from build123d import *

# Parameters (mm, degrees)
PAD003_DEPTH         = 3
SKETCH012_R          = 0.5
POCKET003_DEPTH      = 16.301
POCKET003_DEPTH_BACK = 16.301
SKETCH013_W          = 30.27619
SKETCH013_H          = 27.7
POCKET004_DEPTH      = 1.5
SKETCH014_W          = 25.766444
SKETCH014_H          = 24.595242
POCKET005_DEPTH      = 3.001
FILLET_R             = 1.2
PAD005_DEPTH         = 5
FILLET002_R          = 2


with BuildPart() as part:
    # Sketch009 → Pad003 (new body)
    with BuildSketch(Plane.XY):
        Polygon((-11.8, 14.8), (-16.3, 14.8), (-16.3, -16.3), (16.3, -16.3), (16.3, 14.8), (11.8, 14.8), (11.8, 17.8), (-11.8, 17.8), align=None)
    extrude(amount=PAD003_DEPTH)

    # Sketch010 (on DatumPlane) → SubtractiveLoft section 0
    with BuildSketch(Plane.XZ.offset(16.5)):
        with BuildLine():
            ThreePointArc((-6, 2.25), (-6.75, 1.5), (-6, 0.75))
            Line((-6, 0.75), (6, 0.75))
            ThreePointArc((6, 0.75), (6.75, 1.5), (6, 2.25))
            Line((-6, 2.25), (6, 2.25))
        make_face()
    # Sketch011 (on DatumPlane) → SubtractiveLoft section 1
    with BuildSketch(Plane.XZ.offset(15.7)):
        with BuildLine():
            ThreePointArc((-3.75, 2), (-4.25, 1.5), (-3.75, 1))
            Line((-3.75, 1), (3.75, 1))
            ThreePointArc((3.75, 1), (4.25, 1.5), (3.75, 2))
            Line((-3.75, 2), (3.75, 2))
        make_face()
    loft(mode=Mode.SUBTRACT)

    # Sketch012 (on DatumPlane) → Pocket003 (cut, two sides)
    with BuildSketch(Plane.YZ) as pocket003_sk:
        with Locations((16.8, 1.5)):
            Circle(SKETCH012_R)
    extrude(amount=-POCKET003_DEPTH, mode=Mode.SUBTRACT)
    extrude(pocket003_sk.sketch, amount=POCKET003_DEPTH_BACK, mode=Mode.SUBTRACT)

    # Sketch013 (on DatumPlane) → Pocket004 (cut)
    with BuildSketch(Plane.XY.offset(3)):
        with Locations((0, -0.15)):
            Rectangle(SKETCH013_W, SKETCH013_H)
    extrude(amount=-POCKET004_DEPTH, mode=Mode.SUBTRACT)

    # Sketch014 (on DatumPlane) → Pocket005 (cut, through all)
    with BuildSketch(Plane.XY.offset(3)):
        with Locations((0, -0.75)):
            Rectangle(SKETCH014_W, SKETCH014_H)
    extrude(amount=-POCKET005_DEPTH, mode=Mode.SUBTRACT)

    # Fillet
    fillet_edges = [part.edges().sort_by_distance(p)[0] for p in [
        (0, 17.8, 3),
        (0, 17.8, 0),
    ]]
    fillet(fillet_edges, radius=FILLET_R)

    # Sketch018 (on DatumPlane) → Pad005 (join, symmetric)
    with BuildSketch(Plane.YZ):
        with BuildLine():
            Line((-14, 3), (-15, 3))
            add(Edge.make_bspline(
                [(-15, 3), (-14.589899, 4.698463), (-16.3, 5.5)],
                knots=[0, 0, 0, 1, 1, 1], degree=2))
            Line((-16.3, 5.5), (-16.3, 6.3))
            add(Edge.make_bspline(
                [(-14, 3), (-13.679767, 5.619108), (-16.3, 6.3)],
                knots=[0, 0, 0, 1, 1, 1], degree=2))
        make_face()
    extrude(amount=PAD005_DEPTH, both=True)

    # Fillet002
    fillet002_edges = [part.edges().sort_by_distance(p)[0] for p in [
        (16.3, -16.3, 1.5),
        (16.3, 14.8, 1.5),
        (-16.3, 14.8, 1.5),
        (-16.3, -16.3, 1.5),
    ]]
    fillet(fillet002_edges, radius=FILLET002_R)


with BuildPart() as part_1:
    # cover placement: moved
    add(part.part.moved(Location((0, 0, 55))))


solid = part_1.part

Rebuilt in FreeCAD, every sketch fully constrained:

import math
import FreeCAD as App
import Part
import Sketcher
Q = App.Units.Quantity


def edges_at(feature, points):
    """Names of the edges that pass closest to the given points."""
    edges = feature.Shape.Edges
    near = lambda p: min(range(len(edges)), key=lambda i: edges[i].distToShape(Part.Vertex(*p))[0])
    return sorted({f"Edge{near(p) + 1}" for p in points})


def add_polygon(sketch, points):
    """Adds a closed chain of lines whose ends are joined by coincident constraints."""
    first, n = sketch.GeometryCount, len(points)
    for a, b in zip(points, points[1:] + points[:1]):
        sketch.addGeometry(Part.LineSegment(App.Vector(*a, 0), App.Vector(*b, 0)), False)
    for i in range(n):
        sketch.addConstraint(Sketcher.Constraint("Coincident", first + i, 2, first + (i + 1) % n, 1))

doc = App.newDocument("Part")
body = doc.addObject("PartDesign::Body", "Body")

# Sketch on XY plane
sketch1 = doc.addObject("Sketcher::SketchObject", "Sketch")
body.addObject(sketch1)
sketch1.AttachmentSupport = (doc.XY_Plane, [""])
sketch1.MapMode = "FlatFace"
add_polygon(sketch1, [(-11.8, 14.8), (-16.3, 14.8), (-16.3, -16.3), (16.3, -16.3), (16.3, 14.8), (11.8, 14.8), (11.8, 17.8), (-11.8, 17.8)])  # lines 0-7
sketch1.addConstraint([
    Sketcher.Constraint("Horizontal", 0),
    Sketcher.Constraint("Vertical", 1),
    Sketcher.Constraint("Horizontal", 2),
    Sketcher.Constraint("Vertical", 3),
    Sketcher.Constraint("Horizontal", 4),
    Sketcher.Constraint("Vertical", 5),
    Sketcher.Constraint("Horizontal", 6),
    Sketcher.Constraint("Vertical", 7),
    Sketcher.Constraint("Symmetric", 0, 2, 3, 2, -2),
    Sketcher.Constraint("Equal", 0, 4),
    Sketcher.Constraint("DistanceY", 5, 1, 5, 2, Q("3 mm")),
    Sketcher.Constraint("DistanceX", 0, 2, 0, 1, Q("4.5 mm")),
    Sketcher.Constraint("DistanceX", 2, 1, 2, 2, Q("32.6 mm")),
    Sketcher.Constraint("DistanceY", 1, 2, 1, 1, Q("31.1 mm")),
    Sketcher.Constraint("DistanceY", -1, 1, 0, 2, Q("14.8 mm")),
])
pad1 = doc.addObject("PartDesign::Pad", "Pad")
body.addObject(pad1)
pad1.Profile = sketch1
pad1.Length = 3

# Sketch on XZ plane
sketch2 = doc.addObject("Sketcher::SketchObject", "Sketch001")
body.addObject(sketch2)
sketch2.AttachmentSupport = (doc.XZ_Plane, [""])
sketch2.MapMode = "FlatFace"
sketch2.AttachmentOffset = App.Placement(App.Vector(0, 0, 16.5), App.Rotation())
sketch2.addGeometry([
    Part.ArcOfCircle(Part.Circle(App.Vector(-6, 1.5, 0), App.Vector(0, 0, 1), 0.8), math.radians(90), math.radians(270)),
    Part.LineSegment(App.Vector(-6, 0.8, 0), App.Vector(6, 0.8, 0)),
    Part.ArcOfCircle(Part.Circle(App.Vector(6, 1.5, 0), App.Vector(0, 0, 1), 0.8), math.radians(-90), math.radians(90)),
    Part.LineSegment(App.Vector(6, 2.2, 0), App.Vector(-6, 2.2, 0)),
], False)
sketch2.addConstraint([
    Sketcher.Constraint("Tangent", 0, 2, 1, 1),
    Sketcher.Constraint("Tangent", 1, 2, 2, 1),
    Sketcher.Constraint("Tangent", 2, 2, 3, 1),
    Sketcher.Constraint("Tangent", 3, 2, 0, 1),
    Sketcher.Constraint("Horizontal", 1),
    Sketcher.Constraint("Horizontal", 3),
    Sketcher.Constraint("DistanceX", 1, 1, 1, 2, Q("12 mm")),
    Sketcher.Constraint("Radius", 0, Q("0.75 mm")),
    Sketcher.Constraint("DistanceX", 0, 3, -1, 1, Q("6 mm")),
    Sketcher.Constraint("DistanceY", -1, 1, 0, 3, Q("1.5 mm")),
])

# Sketch on XZ plane
sketch3 = doc.addObject("Sketcher::SketchObject", "Sketch002")
body.addObject(sketch3)
sketch3.AttachmentSupport = (doc.XZ_Plane, [""])
sketch3.MapMode = "FlatFace"
sketch3.AttachmentOffset = App.Placement(App.Vector(0, 0, 15.7), App.Rotation())
sketch3.addGeometry([
    Part.ArcOfCircle(Part.Circle(App.Vector(-3.8, 1.5, 0), App.Vector(0, 0, 1), 0.5), math.radians(90), math.radians(270)),
    Part.LineSegment(App.Vector(-3.8, 1, 0), App.Vector(3.8, 1, 0)),
    Part.ArcOfCircle(Part.Circle(App.Vector(3.8, 1.5, 0), App.Vector(0, 0, 1), 0.5), math.radians(-90), math.radians(90)),
    Part.LineSegment(App.Vector(3.8, 2, 0), App.Vector(-3.8, 2, 0)),
], False)
sketch3.addConstraint([
    Sketcher.Constraint("Tangent", 0, 2, 1, 1),
    Sketcher.Constraint("Tangent", 1, 2, 2, 1),
    Sketcher.Constraint("Tangent", 2, 2, 3, 1),
    Sketcher.Constraint("Tangent", 3, 2, 0, 1),
    Sketcher.Constraint("Horizontal", 1),
    Sketcher.Constraint("Horizontal", 3),
    Sketcher.Constraint("Radius", 0, Q("0.5 mm")),
    Sketcher.Constraint("DistanceX", 1, 1, 1, 2, Q("7.5 mm")),
    Sketcher.Constraint("DistanceY", -1, 1, 0, 2, Q("1 mm")),
    Sketcher.Constraint("DistanceX", 0, 3, -1, 1, Q("3.75 mm")),
])

subtractiveloft = doc.addObject("PartDesign::SubtractiveLoft", "SubtractiveLoft")
body.addObject(subtractiveloft)
subtractiveloft.Profile = sketch2
subtractiveloft.Sections = [sketch3]

# Sketch on YZ plane
sketch4 = doc.addObject("Sketcher::SketchObject", "Sketch003")
body.addObject(sketch4)
sketch4.AttachmentSupport = (doc.YZ_Plane, [""])
sketch4.MapMode = "FlatFace"
sketch4.addGeometry(Part.Circle(App.Vector(16.8, 1.5, 0), App.Vector(0, 0, 1), 0.5), False)
sketch4.addConstraint([
    Sketcher.Constraint("Diameter", 0, Q("1 mm")),
    Sketcher.Constraint("DistanceX", -1, 1, 0, 3, Q("16.8 mm")),
    Sketcher.Constraint("DistanceY", -1, 1, 0, 3, Q("1.5 mm")),
])
pocket1 = doc.addObject("PartDesign::Pocket", "Pocket")
body.addObject(pocket1)
pocket1.Profile = sketch4
pocket1.Type = "ThroughAll"
pocket1.Midplane = True

# Sketch on XY plane
sketch5 = doc.addObject("Sketcher::SketchObject", "Sketch004")
body.addObject(sketch5)
sketch5.AttachmentSupport = (doc.XY_Plane, [""])
sketch5.MapMode = "FlatFace"
sketch5.AttachmentOffset = App.Placement(App.Vector(0, 0, 3), App.Rotation())
add_polygon(sketch5, [(-15, 14), (-15, -14), (15, -14), (15, 14)])  # lines 0-3
sketch5.addConstraint([
    Sketcher.Constraint("Vertical", 0),
    Sketcher.Constraint("Horizontal", 1),
    Sketcher.Constraint("Vertical", 2),
    Sketcher.Constraint("Horizontal", 3),
    Sketcher.Constraint("DistanceY", 0, 2, 0, 1, Q("27.7 mm")),
    Sketcher.Constraint("DistanceY", 0, 2, -1, 1, Q("14 mm")),
    Sketcher.Constraint("DistanceX", 1, 1, 1, 2, Q("30.27619 mm")),
    Sketcher.Constraint("DistanceX", 0, 2, -1, 1, Q("15.138095 mm")),
])
pocket2 = doc.addObject("PartDesign::Pocket", "Pocket001")
body.addObject(pocket2)
pocket2.Profile = sketch5
pocket2.Length = 1.5

# Sketch on XY plane
sketch6 = doc.addObject("Sketcher::SketchObject", "Sketch005")
body.addObject(sketch6)
sketch6.AttachmentSupport = (doc.XY_Plane, [""])
sketch6.MapMode = "FlatFace"
sketch6.AttachmentOffset = App.Placement(App.Vector(0, 0, 3), App.Rotation())
add_polygon(sketch6, [(-13, 12), (-13, -13), (13, -13), (13, 12)])  # lines 0-3
sketch6.addConstraint([
    Sketcher.Constraint("Vertical", 0),
    Sketcher.Constraint("Horizontal", 1),
    Sketcher.Constraint("Vertical", 2),
    Sketcher.Constraint("Horizontal", 3),
    Sketcher.Constraint("DistanceY", 0, 2, 0, 1, Q("24.595242 mm")),
    Sketcher.Constraint("DistanceX", 1, 1, 1, 2, Q("25.766444 mm")),
    Sketcher.Constraint("DistanceY", 0, 2, -1, 1, Q("13.047621 mm")),
    Sketcher.Constraint("DistanceX", 0, 2, -1, 1, Q("12.883222 mm")),
])
pocket3 = doc.addObject("PartDesign::Pocket", "Pocket002")
body.addObject(pocket3)
pocket3.Profile = sketch6
pocket3.Type = "ThroughAll"
doc.recompute()

fillet = doc.addObject("PartDesign::Fillet", "Fillet")
body.addObject(fillet)
fillet.Base = (pocket3, edges_at(pocket3, [(0, 17.8, 3), (0, 17.8, 0)]))
fillet.Radius = 1.2

# Sketch on YZ plane
sketch7 = doc.addObject("Sketcher::SketchObject", "Sketch006")
body.addObject(sketch7)
sketch7.AttachmentSupport = (doc.YZ_Plane, [""])
sketch7.MapMode = "FlatFace"
sketch7.addGeometry([
    Part.LineSegment(App.Vector(-15, 3, 0), App.Vector(-14, 3, 0)),
    Part.BSplineCurve([App.Vector(-14, 3, 0), App.Vector(-13.679767, 5.619108, 0), App.Vector(-16.3, 6.3, 0)], [3, 3], [0, 1], False, 2, [1, 1, 1], False),
    Part.LineSegment(App.Vector(-16.3, 6.3, 0), App.Vector(-16.3, 5.5, 0)),
    Part.BSplineCurve([App.Vector(-15, 3, 0), App.Vector(-14.589899, 4.698463, 0), App.Vector(-16.3, 5.5, 0)], [3, 3], [0, 1], False, 2, [1, 1, 1], False),
], False)
sketch7.addConstraint([
    Sketcher.Constraint("Block", 1),
    Sketcher.Constraint("Block", 3),
    Sketcher.Constraint("Coincident", 0, 2, 1, 1),
    Sketcher.Constraint("Coincident", 1, 2, 2, 1),
    Sketcher.Constraint("Coincident", 2, 2, 3, 2),
    Sketcher.Constraint("Coincident", 3, 1, 0, 1),
])
pad2 = doc.addObject("PartDesign::Pad", "Pad001")
body.addObject(pad2)
pad2.Profile = sketch7
pad2.Length = 10
pad2.Midplane = True
doc.recompute()

fillet2 = doc.addObject("PartDesign::Fillet", "Fillet001")
body.addObject(fillet2)
fillet2.Base = (pad2, edges_at(pad2, [
    (16.3, -16.3, 1.5),
    (16.3, 14.8, 1.5),
    (-16.3, 14.8, 1.5),
    (-16.3, -16.3, 1.5),
]))
fillet2.Radius = 2
body2 = doc.addObject("PartDesign::Body", "Body001")
doc.recompute()

body.Placement = App.Placement(App.Vector(0, 0, 55), App.Rotation(App.Vector(0, 0, 1), 0))
boolean = doc.addObject("PartDesign::Boolean", "Boolean")
body2.addObject(boolean)
boolean.Type = "Fuse"
boolean.addObjects([body])

doc.recompute()
